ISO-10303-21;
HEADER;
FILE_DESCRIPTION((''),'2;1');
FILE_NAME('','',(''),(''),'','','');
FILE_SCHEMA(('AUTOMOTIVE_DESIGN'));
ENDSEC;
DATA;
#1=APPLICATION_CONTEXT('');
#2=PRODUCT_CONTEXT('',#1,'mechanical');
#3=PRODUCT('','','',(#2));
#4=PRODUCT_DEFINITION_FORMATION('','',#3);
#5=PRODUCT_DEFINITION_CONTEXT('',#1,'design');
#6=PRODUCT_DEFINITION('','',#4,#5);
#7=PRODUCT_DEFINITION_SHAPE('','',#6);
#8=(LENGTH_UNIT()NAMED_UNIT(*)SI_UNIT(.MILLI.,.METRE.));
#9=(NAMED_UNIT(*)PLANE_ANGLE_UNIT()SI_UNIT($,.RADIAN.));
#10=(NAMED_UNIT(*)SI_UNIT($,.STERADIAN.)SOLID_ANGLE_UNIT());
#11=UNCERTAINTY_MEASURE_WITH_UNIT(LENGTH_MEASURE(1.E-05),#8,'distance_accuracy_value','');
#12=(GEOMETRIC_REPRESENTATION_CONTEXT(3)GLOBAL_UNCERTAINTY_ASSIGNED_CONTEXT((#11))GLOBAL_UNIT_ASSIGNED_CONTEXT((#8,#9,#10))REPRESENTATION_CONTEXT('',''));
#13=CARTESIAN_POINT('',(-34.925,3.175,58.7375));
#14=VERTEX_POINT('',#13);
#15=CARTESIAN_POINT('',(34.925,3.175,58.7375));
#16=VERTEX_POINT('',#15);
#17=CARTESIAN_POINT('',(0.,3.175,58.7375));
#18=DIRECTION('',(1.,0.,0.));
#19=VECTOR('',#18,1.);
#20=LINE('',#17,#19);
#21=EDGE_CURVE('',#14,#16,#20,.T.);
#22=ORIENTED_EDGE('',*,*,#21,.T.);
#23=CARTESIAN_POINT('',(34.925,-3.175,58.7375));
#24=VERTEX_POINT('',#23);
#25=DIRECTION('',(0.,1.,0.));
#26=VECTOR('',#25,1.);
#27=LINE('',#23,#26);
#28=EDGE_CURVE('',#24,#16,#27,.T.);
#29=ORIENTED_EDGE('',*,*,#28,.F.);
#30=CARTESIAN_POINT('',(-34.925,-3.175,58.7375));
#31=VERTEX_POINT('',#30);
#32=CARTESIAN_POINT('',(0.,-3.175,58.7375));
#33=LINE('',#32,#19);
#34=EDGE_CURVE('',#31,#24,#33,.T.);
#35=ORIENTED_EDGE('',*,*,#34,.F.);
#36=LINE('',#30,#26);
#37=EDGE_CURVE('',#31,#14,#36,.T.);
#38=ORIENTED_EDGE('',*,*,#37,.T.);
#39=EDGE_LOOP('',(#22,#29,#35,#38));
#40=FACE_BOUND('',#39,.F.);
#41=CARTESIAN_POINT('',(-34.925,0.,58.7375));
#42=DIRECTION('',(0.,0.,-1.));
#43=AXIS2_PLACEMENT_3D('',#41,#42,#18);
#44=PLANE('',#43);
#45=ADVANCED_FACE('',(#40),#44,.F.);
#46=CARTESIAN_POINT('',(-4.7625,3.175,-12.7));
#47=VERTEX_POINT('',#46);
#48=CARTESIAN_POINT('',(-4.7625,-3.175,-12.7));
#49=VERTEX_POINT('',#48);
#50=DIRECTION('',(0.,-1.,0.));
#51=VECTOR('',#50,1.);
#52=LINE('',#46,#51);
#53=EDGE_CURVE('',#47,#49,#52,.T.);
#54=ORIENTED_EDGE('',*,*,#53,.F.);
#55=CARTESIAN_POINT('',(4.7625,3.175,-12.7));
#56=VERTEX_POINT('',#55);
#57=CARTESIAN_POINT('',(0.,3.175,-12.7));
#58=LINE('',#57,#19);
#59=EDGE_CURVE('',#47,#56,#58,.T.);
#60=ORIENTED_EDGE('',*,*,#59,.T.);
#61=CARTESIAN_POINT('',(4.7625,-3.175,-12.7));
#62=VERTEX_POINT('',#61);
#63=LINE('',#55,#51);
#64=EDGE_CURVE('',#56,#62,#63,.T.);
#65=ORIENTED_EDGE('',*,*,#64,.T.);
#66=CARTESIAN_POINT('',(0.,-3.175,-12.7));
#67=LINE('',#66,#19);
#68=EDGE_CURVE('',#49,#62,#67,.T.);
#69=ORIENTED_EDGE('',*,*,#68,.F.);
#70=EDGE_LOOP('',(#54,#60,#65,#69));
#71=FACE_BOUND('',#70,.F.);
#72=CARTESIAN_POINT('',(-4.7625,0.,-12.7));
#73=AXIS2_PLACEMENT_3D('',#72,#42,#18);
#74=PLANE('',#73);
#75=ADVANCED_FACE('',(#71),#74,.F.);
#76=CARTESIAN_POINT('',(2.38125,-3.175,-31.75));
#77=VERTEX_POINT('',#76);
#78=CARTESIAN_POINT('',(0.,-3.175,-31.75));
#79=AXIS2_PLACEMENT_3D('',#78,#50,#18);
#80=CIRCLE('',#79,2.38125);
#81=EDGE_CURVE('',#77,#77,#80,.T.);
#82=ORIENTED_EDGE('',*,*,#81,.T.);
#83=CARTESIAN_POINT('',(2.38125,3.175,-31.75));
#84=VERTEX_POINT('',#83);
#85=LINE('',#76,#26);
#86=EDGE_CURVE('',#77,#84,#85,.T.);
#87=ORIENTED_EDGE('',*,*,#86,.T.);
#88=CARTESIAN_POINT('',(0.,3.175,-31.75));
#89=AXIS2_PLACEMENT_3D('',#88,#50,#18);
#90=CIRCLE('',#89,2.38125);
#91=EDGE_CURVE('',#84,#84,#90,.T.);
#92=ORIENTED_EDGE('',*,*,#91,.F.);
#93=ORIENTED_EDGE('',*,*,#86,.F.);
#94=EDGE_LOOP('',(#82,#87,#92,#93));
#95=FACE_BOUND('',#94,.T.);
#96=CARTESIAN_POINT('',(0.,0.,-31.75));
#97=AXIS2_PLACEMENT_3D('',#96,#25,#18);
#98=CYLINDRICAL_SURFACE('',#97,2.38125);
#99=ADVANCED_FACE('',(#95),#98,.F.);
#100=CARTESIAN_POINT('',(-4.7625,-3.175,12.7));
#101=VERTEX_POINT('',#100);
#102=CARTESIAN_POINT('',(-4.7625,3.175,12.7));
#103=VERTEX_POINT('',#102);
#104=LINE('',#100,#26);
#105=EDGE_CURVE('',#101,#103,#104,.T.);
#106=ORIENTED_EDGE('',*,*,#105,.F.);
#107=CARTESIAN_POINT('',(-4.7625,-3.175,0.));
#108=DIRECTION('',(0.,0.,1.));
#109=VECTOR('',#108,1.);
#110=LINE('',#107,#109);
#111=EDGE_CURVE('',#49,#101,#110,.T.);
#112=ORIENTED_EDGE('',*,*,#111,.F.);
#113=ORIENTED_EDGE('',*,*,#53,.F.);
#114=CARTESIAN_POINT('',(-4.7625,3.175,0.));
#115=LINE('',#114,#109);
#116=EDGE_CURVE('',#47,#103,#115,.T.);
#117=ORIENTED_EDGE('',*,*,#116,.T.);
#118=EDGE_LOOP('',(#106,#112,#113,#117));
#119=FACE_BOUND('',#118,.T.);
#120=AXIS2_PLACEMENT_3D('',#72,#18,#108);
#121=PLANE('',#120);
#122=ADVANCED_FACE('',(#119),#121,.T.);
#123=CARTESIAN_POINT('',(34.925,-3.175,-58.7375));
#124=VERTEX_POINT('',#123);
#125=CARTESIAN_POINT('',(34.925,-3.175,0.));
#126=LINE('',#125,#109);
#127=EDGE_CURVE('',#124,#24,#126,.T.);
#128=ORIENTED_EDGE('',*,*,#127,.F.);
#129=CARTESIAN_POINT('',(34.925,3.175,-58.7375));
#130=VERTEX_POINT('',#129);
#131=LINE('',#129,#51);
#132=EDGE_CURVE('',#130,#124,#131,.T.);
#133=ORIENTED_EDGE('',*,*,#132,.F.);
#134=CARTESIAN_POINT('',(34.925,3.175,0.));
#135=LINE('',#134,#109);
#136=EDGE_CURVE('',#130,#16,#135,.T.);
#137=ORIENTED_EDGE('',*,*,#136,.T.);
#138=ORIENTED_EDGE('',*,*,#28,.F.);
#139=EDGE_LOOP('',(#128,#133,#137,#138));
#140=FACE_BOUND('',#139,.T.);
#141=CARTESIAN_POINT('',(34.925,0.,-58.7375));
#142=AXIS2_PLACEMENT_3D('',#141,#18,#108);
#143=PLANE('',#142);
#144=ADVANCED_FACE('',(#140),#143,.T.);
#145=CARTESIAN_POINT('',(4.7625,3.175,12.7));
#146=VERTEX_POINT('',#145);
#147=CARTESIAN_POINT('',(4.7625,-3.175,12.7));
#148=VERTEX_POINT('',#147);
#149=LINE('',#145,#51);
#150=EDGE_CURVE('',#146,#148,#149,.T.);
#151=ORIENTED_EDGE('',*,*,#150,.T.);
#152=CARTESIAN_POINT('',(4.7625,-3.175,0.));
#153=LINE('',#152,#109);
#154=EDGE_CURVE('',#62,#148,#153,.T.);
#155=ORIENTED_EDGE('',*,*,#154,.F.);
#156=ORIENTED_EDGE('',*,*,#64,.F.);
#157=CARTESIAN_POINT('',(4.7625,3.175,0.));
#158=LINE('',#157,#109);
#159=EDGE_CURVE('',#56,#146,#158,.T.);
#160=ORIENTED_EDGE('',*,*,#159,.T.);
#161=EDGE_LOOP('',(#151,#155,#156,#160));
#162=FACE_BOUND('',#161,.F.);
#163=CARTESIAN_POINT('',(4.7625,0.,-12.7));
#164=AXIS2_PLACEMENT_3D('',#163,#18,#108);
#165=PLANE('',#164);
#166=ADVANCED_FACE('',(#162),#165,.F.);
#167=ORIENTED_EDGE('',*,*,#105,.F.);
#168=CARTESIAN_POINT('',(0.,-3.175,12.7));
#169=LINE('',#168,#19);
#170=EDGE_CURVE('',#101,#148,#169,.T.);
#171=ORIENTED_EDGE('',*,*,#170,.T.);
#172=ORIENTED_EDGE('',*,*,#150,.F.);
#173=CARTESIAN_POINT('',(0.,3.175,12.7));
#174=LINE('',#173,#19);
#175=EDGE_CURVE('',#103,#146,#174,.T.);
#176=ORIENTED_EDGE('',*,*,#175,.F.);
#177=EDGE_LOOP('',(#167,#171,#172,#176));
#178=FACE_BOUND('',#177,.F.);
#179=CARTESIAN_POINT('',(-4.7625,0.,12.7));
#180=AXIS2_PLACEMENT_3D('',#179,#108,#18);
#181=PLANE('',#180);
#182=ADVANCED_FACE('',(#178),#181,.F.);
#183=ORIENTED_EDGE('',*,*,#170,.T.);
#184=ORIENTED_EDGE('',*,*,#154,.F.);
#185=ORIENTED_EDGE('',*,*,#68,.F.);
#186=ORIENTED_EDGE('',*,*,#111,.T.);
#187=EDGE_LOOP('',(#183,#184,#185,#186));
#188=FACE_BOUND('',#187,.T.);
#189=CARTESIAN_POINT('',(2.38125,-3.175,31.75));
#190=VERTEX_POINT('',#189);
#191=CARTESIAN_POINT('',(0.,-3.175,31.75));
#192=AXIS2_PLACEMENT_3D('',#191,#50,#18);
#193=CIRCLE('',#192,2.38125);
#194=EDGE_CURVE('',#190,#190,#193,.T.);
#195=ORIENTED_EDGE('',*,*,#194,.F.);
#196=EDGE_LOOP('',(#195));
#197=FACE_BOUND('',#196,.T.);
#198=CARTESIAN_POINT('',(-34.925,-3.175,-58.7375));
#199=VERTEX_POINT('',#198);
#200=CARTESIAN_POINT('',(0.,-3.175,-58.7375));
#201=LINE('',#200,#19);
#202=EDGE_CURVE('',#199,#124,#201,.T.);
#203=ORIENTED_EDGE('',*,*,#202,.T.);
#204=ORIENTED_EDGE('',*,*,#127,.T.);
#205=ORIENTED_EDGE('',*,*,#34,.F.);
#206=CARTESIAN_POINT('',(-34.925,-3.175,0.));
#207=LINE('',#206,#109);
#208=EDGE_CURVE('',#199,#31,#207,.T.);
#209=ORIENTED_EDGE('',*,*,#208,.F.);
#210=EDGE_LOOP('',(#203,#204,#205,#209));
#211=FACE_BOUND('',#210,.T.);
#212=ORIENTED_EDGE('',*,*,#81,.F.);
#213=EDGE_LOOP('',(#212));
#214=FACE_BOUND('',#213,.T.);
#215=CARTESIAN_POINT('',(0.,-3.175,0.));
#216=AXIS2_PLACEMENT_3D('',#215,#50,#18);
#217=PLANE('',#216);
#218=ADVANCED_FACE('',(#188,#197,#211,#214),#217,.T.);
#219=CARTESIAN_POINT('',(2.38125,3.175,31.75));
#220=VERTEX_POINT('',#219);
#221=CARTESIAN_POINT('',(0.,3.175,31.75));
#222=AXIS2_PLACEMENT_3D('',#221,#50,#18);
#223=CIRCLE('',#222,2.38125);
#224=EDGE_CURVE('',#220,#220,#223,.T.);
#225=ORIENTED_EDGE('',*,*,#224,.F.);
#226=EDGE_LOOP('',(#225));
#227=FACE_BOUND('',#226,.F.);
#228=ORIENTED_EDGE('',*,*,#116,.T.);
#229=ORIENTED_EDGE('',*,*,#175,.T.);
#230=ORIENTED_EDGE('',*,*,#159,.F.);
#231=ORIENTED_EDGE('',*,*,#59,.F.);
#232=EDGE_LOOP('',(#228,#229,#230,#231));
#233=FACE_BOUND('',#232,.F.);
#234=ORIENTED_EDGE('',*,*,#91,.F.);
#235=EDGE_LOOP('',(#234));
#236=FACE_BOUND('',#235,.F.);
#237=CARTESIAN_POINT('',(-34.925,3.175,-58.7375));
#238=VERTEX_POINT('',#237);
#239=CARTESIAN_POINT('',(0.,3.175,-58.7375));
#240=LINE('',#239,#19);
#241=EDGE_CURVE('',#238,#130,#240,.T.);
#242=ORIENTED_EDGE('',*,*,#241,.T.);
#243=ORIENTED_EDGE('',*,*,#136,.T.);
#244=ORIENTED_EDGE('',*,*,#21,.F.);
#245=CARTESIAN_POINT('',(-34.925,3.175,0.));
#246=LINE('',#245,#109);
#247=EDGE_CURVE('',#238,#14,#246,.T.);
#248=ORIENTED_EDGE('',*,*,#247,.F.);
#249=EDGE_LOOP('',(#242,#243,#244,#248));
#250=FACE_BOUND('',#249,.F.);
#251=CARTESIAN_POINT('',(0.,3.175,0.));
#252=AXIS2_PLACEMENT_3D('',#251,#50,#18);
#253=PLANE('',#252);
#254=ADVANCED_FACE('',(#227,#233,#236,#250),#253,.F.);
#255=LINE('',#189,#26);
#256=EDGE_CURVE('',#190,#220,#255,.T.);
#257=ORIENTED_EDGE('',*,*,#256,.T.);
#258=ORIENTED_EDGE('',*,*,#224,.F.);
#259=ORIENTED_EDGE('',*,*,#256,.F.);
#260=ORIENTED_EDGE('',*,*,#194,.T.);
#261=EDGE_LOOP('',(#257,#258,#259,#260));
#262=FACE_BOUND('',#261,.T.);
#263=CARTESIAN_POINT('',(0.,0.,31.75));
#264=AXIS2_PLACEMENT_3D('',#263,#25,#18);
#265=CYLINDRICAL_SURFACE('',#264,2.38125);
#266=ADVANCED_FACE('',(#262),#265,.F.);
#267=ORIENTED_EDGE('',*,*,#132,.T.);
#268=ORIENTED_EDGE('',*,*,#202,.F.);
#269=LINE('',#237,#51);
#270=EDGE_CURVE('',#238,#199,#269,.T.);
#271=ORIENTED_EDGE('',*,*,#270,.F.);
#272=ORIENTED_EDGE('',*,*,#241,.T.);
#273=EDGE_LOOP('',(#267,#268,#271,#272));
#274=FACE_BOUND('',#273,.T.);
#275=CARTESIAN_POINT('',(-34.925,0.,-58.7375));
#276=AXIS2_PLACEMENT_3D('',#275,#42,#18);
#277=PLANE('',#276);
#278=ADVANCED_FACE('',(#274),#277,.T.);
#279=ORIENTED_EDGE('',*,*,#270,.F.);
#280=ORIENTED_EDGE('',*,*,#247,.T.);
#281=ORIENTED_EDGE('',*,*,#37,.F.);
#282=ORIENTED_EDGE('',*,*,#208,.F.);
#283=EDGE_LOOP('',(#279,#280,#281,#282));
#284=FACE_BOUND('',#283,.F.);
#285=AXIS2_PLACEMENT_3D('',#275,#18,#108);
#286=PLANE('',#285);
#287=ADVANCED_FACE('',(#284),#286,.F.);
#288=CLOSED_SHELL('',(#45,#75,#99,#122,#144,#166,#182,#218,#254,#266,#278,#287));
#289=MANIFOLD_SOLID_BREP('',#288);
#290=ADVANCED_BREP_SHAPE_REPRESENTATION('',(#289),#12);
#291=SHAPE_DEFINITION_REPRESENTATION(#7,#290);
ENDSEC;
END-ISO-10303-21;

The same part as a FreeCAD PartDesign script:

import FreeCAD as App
import Part
import Sketcher

V = App.Vector
Q = App.Units.Quantity

doc = App.newDocument("Part")
params = doc.addObject("Spreadsheet::Sheet", "Params")
for row, (alias, value) in enumerate([
    ("sketch1_height", "1 in"),
    ("sketch1_diameter", "0.1875 in"),
    ("sketch1_width", "2.75 in"),
    ("sketch1_width2", "0.375 in"),
    ("sketch1_height2", "4.625 in"),
    ("pad1_length", "0.25 in"),
], start=1):
    params.set(f"A{row}", alias)
    params.set(f"B{row}", "=" + value)
    params.setAlias(f"B{row}", alias)

body = doc.addObject("PartDesign::Body", "Body")

# Sketch on XZ plane
sketch1 = body.newObject("Sketcher::SketchObject", "Sketch")
sketch1.AttachmentSupport = (doc.getObject("XZ_Plane"), [""])
sketch1.MapMode = "FlatFace"
sketch1.addGeometry(Part.LineSegment(V(-34.925, 58.7375, 0), V(-34.925, -58.7375, 0)), False)
sketch1.addGeometry(Part.LineSegment(V(-34.925, -58.7375, 0), V(34.925, -58.7375, 0)), False)
sketch1.addGeometry(Part.LineSegment(V(34.925, -58.7375, 0), V(34.925, 58.7375, 0)), False)
sketch1.addGeometry(Part.LineSegment(V(34.925, 58.7375, 0), V(-34.925, 58.7375, 0)), False)
sketch1.addGeometry(Part.Circle(V(0, -31.75, 0), V(0, 0, 1), 2.38125), False)
sketch1.addGeometry(Part.LineSegment(V(4.7625, -12.7, 0), V(-4.7625, -12.7, 0)), False)
sketch1.addGeometry(Part.LineSegment(V(-4.7625, -12.7, 0), V(-4.7625, 12.7, 0)), False)
sketch1.addGeometry(Part.LineSegment(V(-4.7625, 12.7, 0), V(4.7625, 12.7, 0)), False)
sketch1.addGeometry(Part.LineSegment(V(4.7625, 12.7, 0), V(4.7625, -12.7, 0)), False)
sketch1.addGeometry(Part.Circle(V(0, 31.75, 0), V(0, 0, 1), 2.38125), False)
sketch1.addConstraint(Sketcher.Constraint("Coincident", 0, 2, 1, 1))
sketch1.addConstraint(Sketcher.Constraint("Coincident", 1, 2, 2, 1))
sketch1.addConstraint(Sketcher.Constraint("Coincident", 2, 2, 3, 1))
sketch1.addConstraint(Sketcher.Constraint("Coincident", 3, 2, 0, 1))
sketch1.addConstraint(Sketcher.Constraint("Coincident", 5, 2, 6, 1))
sketch1.addConstraint(Sketcher.Constraint("Coincident", 6, 2, 7, 1))
sketch1.addConstraint(Sketcher.Constraint("Coincident", 7, 2, 8, 1))
sketch1.addConstraint(Sketcher.Constraint("Coincident", 8, 2, 5, 1))
sketch1.addConstraint(Sketcher.Constraint("Vertical", 0))
sketch1.addConstraint(Sketcher.Constraint("Horizontal", 1))
sketch1.addConstraint(Sketcher.Constraint("Vertical", 2))
sketch1.addConstraint(Sketcher.Constraint("Horizontal", 3))
sketch1.addConstraint(Sketcher.Constraint("Horizontal", 5))
sketch1.addConstraint(Sketcher.Constraint("Vertical", 6))
sketch1.addConstraint(Sketcher.Constraint("Horizontal", 7))
sketch1.addConstraint(Sketcher.Constraint("Vertical", 8))
sketch1.addConstraint(Sketcher.Constraint("Equal", 4, 9))
sketch1.addConstraint(Sketcher.Constraint("Symmetric", 4, 3, 9, 3, -1, 1))
sketch1.addConstraint(Sketcher.Constraint("Symmetric", 0, 2, 2, 2, -1, 1))
sketch1.addConstraint(Sketcher.Constraint("Symmetric", 5, 2, 7, 2, -1, 1))
sketch1.addConstraint(Sketcher.Constraint("PointOnObject", 4, 3, -2))
sketch1.addConstraint(Sketcher.Constraint("DistanceY", 6, 1, 6, 2, Q("1 in")))
sketch1.addConstraint(Sketcher.Constraint("Diameter", 4, Q("0.1875 in")))
sketch1.addConstraint(Sketcher.Constraint("DistanceX", 1, 1, 1, 2, Q("2.75 in")))
sketch1.addConstraint(Sketcher.Constraint("DistanceY", 4, 3, 9, 3, Q("2.5 in")))
sketch1.addConstraint(Sketcher.Constraint("DistanceX", 5, 2, 5, 1, Q("0.375 in")))
sketch1.addConstraint(Sketcher.Constraint("DistanceY", 0, 2, 0, 1, Q("4.625 in")))
sketch1.setExpression("Constraints[21]", "Params.sketch1_height")
sketch1.setExpression("Constraints[22]", "Params.sketch1_diameter")
sketch1.setExpression("Constraints[23]", "Params.sketch1_width")
sketch1.setExpression("Constraints[25]", "Params.sketch1_width2")
sketch1.setExpression("Constraints[26]", "Params.sketch1_height2")
pad1 = body.newObject("PartDesign::Pad", "Pad")
pad1.Profile = sketch1
pad1.setExpression("Length", "Params.pad1_length")
pad1.Midplane = True

doc.recompute()
